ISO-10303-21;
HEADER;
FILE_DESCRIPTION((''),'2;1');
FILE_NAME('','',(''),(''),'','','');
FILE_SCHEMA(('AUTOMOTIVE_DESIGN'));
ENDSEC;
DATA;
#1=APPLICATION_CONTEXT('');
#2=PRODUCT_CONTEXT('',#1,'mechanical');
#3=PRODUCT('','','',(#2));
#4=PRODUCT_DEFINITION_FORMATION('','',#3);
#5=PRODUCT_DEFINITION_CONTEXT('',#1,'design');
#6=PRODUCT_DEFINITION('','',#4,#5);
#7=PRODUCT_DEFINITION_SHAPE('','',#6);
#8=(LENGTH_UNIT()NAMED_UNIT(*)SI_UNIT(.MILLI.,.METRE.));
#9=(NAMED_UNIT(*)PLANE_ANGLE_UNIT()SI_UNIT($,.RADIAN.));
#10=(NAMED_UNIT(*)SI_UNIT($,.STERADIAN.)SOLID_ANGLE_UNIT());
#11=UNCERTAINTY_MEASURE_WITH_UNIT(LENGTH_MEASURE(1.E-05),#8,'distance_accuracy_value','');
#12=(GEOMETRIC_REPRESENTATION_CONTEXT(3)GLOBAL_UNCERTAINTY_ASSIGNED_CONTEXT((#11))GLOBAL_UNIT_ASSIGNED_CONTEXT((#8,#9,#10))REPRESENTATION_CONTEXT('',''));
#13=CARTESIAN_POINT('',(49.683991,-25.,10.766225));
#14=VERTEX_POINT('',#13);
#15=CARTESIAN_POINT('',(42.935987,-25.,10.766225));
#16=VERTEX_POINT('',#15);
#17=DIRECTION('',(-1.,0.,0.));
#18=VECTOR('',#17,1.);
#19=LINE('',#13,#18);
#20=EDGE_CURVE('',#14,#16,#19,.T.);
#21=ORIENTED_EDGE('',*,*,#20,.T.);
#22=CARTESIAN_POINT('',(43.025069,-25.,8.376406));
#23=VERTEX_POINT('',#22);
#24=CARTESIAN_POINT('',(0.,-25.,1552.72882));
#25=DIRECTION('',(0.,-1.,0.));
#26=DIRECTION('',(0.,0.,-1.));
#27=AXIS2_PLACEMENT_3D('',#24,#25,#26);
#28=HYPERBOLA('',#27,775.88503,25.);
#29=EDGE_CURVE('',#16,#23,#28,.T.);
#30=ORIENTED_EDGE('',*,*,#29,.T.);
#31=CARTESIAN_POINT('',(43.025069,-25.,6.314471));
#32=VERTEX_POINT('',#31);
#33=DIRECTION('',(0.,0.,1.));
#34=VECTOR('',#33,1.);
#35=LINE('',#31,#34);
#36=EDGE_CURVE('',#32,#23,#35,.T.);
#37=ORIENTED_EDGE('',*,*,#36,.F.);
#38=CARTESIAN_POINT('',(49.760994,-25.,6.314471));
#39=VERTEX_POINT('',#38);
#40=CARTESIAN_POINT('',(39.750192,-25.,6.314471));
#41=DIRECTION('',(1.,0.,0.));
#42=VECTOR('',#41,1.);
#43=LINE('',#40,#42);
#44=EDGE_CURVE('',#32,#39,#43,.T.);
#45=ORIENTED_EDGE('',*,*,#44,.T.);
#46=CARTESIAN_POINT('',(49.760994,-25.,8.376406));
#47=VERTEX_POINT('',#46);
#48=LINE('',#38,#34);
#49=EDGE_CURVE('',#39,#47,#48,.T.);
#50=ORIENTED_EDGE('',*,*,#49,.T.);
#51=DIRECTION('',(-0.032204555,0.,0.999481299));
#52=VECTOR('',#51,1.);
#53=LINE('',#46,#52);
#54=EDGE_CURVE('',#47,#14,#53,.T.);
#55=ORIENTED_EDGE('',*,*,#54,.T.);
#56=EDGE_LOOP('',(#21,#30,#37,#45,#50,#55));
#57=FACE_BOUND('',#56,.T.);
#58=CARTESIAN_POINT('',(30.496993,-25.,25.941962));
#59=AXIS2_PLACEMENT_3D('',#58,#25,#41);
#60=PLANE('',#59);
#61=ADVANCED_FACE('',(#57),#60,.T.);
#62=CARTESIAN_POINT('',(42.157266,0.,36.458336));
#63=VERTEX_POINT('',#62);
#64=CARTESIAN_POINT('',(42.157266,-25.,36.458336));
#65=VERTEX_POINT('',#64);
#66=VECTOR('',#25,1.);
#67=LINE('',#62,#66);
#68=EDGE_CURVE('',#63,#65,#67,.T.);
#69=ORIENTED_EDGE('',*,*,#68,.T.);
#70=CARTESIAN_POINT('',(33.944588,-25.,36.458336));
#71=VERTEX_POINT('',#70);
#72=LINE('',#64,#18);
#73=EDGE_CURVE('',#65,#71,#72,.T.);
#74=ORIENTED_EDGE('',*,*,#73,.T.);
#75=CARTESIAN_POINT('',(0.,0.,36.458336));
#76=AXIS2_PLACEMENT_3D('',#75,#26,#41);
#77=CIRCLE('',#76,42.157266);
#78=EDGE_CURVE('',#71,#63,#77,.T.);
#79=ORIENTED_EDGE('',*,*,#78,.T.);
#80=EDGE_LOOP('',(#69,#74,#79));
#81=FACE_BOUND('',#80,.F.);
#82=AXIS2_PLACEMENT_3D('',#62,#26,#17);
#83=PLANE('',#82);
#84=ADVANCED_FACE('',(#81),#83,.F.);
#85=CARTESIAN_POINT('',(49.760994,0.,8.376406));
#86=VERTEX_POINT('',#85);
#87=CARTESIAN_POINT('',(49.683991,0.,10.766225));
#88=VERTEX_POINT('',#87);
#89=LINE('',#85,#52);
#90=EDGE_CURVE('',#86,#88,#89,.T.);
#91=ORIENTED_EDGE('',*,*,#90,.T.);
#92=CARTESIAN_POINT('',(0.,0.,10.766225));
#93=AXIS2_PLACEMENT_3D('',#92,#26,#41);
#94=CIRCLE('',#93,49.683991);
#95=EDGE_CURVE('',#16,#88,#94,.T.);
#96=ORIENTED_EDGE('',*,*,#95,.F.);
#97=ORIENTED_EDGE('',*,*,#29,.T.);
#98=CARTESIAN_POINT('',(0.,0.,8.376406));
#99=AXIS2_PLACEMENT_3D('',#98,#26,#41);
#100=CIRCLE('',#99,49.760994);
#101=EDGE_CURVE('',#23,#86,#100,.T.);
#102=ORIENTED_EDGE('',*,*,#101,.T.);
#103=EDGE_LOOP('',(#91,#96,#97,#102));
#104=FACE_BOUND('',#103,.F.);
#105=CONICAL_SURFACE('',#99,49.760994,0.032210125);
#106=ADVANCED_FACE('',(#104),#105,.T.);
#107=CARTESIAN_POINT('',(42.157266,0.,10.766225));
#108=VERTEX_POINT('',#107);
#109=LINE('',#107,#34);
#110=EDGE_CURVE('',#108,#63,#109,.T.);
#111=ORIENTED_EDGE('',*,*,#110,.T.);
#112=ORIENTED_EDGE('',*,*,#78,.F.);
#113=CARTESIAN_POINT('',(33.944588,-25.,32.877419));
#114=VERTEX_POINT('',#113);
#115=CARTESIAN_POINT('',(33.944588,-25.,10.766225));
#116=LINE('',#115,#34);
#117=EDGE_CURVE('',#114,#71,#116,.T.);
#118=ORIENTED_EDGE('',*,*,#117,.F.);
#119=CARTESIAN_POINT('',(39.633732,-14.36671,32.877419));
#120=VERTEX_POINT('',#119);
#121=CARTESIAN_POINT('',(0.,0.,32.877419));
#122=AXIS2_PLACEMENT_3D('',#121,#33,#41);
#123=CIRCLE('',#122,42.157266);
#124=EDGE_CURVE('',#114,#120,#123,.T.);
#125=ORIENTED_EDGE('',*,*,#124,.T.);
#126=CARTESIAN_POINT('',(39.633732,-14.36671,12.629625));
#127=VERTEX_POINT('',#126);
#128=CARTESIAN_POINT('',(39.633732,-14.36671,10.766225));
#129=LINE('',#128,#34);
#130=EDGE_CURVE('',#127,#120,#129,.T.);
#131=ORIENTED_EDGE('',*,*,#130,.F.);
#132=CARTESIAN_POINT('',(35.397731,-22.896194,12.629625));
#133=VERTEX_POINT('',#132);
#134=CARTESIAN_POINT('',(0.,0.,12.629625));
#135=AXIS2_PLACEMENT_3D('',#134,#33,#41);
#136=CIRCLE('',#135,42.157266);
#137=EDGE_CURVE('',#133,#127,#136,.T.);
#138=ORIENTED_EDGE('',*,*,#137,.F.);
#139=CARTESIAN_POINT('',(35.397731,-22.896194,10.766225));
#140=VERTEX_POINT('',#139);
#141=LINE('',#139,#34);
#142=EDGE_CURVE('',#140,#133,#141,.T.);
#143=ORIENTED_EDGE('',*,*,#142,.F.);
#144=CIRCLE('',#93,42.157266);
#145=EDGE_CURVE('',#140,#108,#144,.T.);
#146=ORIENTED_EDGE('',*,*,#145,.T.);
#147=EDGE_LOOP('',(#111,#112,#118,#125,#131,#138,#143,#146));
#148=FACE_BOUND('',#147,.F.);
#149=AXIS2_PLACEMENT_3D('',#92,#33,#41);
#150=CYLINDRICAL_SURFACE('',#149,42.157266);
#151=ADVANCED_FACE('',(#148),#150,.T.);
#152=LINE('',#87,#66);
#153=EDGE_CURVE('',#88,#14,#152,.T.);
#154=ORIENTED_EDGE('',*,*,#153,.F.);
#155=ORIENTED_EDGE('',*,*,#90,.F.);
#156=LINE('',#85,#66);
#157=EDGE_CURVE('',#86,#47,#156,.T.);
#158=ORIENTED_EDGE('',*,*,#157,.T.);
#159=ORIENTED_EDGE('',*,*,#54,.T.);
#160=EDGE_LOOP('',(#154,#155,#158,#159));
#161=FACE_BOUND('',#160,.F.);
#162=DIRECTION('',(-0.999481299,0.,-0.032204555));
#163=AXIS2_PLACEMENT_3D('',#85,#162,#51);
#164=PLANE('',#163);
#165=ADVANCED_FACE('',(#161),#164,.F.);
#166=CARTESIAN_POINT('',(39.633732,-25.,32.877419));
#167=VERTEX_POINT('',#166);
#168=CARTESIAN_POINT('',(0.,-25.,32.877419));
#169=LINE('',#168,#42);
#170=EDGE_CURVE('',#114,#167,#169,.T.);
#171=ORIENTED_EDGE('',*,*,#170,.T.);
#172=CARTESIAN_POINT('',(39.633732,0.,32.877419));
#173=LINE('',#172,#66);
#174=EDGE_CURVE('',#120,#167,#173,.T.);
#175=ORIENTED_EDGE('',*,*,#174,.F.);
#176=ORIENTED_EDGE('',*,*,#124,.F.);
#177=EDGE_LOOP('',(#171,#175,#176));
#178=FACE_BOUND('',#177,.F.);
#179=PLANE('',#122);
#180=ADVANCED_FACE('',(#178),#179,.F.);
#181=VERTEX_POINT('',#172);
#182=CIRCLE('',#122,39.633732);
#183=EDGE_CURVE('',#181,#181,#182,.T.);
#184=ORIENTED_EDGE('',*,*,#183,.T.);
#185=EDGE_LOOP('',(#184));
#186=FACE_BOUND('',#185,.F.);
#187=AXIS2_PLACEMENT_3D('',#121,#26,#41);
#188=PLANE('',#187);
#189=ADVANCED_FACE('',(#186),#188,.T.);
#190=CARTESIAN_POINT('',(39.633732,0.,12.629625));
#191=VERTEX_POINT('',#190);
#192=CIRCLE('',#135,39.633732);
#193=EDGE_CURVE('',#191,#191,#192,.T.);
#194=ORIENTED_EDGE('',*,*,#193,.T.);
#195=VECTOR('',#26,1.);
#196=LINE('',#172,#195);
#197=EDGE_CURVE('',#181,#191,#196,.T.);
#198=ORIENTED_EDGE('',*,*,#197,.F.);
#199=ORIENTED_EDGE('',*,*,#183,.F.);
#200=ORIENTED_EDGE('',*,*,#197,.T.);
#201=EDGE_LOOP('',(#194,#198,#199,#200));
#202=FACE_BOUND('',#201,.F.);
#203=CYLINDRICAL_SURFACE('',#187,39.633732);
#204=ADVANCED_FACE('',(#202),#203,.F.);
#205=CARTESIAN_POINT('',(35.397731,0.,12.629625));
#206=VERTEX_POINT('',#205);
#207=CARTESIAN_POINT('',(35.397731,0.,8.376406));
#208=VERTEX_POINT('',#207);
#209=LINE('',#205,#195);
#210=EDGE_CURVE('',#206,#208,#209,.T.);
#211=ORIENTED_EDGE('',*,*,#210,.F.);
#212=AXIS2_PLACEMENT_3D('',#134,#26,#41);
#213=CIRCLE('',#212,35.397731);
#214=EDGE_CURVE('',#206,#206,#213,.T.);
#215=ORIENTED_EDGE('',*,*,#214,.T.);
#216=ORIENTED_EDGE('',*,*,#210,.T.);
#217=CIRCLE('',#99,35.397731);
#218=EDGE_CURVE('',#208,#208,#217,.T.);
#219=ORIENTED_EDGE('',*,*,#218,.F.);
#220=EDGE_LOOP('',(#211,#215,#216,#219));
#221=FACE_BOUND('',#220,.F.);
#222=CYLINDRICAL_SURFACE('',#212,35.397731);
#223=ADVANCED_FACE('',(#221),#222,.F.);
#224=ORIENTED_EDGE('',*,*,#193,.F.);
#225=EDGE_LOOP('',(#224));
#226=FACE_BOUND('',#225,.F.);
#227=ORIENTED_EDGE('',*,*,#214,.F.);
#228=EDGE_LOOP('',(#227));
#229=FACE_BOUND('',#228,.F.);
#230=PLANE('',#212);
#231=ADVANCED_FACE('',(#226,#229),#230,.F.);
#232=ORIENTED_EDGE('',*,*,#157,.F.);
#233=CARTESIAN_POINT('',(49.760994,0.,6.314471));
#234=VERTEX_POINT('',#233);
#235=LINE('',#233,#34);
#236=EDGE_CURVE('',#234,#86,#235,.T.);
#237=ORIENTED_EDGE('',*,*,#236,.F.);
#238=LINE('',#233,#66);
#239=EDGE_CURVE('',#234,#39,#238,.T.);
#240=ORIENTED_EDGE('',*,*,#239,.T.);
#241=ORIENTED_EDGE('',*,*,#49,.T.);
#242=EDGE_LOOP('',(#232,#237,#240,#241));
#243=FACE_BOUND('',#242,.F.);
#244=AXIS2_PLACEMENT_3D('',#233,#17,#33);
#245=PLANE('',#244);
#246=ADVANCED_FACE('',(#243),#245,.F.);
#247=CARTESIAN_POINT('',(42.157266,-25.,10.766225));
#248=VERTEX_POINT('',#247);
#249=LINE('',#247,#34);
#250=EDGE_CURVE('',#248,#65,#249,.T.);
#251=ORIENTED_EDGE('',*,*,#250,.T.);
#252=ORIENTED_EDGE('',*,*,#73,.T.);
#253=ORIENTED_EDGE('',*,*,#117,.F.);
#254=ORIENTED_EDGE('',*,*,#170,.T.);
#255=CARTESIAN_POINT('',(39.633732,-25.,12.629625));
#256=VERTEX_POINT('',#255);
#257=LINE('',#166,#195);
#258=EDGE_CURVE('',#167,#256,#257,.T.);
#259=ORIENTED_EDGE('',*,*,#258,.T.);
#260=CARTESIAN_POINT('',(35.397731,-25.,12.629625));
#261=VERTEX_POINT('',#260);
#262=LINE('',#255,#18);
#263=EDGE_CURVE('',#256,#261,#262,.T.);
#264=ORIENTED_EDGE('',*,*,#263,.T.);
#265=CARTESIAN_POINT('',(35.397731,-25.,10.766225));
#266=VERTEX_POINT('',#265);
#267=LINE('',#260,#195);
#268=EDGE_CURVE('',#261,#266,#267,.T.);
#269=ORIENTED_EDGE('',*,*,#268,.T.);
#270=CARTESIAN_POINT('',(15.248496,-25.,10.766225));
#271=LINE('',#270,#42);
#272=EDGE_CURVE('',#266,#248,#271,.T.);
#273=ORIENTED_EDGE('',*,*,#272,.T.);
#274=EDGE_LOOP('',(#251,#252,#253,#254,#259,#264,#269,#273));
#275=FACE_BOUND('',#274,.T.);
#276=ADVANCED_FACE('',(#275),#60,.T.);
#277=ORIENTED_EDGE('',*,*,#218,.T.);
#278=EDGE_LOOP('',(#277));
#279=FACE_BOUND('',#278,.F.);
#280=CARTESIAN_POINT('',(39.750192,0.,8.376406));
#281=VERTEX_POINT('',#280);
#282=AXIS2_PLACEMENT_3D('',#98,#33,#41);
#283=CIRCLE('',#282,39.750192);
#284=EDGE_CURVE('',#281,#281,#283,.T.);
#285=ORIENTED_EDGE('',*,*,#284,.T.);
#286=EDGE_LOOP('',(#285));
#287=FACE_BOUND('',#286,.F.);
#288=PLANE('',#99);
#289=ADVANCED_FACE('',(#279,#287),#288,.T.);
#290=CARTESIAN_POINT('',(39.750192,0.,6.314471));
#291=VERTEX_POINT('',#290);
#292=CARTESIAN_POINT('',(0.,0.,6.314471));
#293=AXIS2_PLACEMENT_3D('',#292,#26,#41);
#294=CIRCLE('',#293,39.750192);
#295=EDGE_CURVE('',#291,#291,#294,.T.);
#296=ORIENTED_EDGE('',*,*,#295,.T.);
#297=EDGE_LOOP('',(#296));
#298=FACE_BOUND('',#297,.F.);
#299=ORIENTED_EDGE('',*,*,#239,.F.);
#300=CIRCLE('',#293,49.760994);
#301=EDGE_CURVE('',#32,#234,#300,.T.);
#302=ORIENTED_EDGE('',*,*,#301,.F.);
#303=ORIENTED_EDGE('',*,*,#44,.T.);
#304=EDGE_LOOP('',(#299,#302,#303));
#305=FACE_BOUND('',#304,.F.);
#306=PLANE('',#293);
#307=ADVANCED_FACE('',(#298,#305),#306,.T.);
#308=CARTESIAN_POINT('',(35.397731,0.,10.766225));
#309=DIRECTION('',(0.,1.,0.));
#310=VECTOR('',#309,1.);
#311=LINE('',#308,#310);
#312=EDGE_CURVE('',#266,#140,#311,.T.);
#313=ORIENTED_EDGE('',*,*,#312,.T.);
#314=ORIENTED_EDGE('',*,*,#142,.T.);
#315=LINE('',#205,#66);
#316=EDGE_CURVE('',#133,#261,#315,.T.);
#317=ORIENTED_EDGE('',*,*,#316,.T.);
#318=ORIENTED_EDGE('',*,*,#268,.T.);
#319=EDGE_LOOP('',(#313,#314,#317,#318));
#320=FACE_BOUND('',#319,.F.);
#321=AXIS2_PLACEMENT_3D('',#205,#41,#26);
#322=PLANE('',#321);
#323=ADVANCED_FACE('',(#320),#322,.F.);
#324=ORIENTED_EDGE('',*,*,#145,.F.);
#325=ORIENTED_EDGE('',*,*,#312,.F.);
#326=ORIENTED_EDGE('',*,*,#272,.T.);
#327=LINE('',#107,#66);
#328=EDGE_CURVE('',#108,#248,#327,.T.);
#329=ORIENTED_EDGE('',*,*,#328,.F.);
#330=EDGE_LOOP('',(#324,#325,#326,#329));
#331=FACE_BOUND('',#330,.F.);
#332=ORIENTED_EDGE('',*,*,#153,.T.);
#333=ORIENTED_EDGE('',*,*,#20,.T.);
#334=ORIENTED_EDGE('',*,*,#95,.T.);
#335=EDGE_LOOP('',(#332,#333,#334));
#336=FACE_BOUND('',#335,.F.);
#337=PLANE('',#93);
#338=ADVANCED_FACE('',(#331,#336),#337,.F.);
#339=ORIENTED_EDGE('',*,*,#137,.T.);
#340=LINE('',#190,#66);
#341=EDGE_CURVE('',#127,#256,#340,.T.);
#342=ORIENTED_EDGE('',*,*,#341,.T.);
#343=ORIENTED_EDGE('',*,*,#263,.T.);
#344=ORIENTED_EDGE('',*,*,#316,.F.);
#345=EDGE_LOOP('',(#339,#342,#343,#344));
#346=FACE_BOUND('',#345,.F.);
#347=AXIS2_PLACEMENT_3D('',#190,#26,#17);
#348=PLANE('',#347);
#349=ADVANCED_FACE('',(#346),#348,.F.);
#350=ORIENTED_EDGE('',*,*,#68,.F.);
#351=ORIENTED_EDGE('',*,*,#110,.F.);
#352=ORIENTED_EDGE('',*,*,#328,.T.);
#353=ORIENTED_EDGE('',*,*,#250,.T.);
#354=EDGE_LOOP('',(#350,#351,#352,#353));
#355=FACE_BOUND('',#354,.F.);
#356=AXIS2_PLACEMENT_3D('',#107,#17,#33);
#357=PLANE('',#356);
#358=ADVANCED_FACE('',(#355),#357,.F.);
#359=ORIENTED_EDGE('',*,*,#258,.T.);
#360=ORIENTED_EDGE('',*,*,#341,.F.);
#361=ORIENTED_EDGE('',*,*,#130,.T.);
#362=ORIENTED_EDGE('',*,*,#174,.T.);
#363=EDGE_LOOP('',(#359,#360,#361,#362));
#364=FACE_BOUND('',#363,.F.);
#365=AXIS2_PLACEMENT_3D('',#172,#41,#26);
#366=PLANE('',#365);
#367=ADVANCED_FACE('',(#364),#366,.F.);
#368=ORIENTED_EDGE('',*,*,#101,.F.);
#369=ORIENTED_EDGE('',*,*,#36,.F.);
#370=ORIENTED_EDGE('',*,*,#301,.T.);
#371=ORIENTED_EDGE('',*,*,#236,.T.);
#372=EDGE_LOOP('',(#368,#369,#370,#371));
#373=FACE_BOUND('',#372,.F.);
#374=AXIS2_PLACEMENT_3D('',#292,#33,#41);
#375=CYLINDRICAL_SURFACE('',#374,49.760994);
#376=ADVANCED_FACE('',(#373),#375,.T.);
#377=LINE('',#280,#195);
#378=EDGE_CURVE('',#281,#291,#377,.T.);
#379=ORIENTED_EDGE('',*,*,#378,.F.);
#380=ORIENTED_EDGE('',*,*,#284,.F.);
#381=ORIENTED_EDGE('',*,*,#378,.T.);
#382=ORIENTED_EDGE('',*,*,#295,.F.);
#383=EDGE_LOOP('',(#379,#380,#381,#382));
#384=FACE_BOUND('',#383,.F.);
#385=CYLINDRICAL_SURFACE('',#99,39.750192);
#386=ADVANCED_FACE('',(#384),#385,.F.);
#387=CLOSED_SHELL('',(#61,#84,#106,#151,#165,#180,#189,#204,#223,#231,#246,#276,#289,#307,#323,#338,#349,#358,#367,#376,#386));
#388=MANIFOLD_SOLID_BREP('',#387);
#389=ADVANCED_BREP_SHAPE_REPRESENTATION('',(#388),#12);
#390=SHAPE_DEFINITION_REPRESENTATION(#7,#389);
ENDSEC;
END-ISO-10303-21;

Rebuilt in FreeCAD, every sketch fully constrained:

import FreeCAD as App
import Part
import Sketcher


def add_polygon(sketch, points):
    """Adds a closed chain of lines whose ends are joined by coincident constraints."""
    first, n = sketch.GeometryCount, len(points)
    for a, b in zip(points, points[1:] + points[:1]):
        sketch.addGeometry(Part.LineSegment(App.Vector(*a, 0), App.Vector(*b, 0)), False)
    for i in range(n):
        sketch.addConstraint(Sketcher.Constraint("Coincident", first + i, 2, first + (i + 1) % n, 1))

doc = App.newDocument("Part")
params = doc.addObject("Spreadsheet::Sheet", "Params")
for row, (alias, value) in enumerate([
    ("pad1_length", "25 mm"),
    ("revolution_angle", "360 deg"),
], start=1):
    params.set(f"A{row}", alias)
    params.set(f"B{row}", "=" + value)
    params.setAlias(f"B{row}", alias)

body = doc.addObject("PartDesign::Body", "Body")

# Sketch on XZ plane
sketch1 = doc.addObject("Sketcher::SketchObject", "Sketch")
body.addObject(sketch1)
sketch1.AttachmentSupport = (doc.XZ_Plane, [""])
sketch1.MapMode = "FlatFace"
add_polygon(sketch1, [(42.2, 36.5), (0, 36.5), (0, 32.9), (39.6, 32.9), (39.6, 12.6), (35.4, 12.6), (35.4, 8.4), (39.8, 8.4), (39.8, 6.3), (49.8, 6.3), (49.8, 8.4), (49.7, 10.8), (42.2, 10.8)])  # lines 0-12
sketch1.addConstraint([
    Sketcher.Constraint("Horizontal", 0),
    Sketcher.Constraint("Vertical", 1),
    Sketcher.Constraint("Horizontal", 2),
    Sketcher.Constraint("Vertical", 3),
    Sketcher.Constraint("Horizontal", 4),
    Sketcher.Constraint("Vertical", 5),
    Sketcher.Constraint("Horizontal", 6),
    Sketcher.Constraint("Vertical", 7),
    Sketcher.Constraint("Horizontal", 8),
    Sketcher.Constraint("Vertical", 9),
    Sketcher.Constraint("Horizontal", 11),
    Sketcher.Constraint("Vertical", 12),
    Sketcher.Constraint("PointOnObject", 0, 2, -2),
    Sketcher.Constraint("Horizontal", 6, 2, 9, 2),
    Sketcher.Constraint("DistanceX", 4, 2, 4, 1, 4.236001),
    Sketcher.Constraint("DistanceX", 8, 1, 8, 2, 10.010802),
    Sketcher.Constraint("DistanceX", 6, 1, 6, 2, 4.352461),
    Sketcher.Constraint("DistanceY", 5, 2, 5, 1, 4.253219),
    Sketcher.Constraint("DistanceY", 12, 1, 12, 2, 25.692111),
    Sketcher.Constraint("DistanceX", 6, 2, 10, 2, 9.933799),
    Sketcher.Constraint("DistanceY", 10, 2, 3, 2, 1.8634),
    Sketcher.Constraint("DistanceX", 0, 2, 0, 1, 42.157266),
    Sketcher.Constraint("DistanceX", 2, 1, 2, 2, 39.633732),
    Sketcher.Constraint("DistanceY", 1, 2, 1, 1, 3.580917),
    Sketcher.Constraint("DistanceY", 7, 2, 7, 1, 2.061935),
    Sketcher.Constraint("DistanceY", -1, 1, 1, 2, 32.877419),
])
pad1 = doc.addObject("PartDesign::Pad", "Pad")
body.addObject(pad1)
pad1.Profile = sketch1
pad1.setExpression("Length", "Params.pad1_length")

# Sketch on XZ plane
sketch2 = doc.addObject("Sketcher::SketchObject", "Sketch001")
body.addObject(sketch2)
sketch2.AttachmentSupport = (doc.XZ_Plane, [""])
sketch2.MapMode = "FlatFace"
add_polygon(sketch2, [(42.2, 36.5), (0, 36.5), (0, 32.9), (39.6, 32.9), (39.6, 12.6), (35.4, 12.6), (35.4, 8.4), (39.8, 8.4), (39.8, 6.3), (49.8, 6.3), (49.8, 8.4), (49.7, 10.8), (42.2, 10.8)])  # lines 0-12
sketch2.addConstraint([
    Sketcher.Constraint("Horizontal", 0),
    Sketcher.Constraint("Vertical", 1),
    Sketcher.Constraint("Horizontal", 2),
    Sketcher.Constraint("Vertical", 3),
    Sketcher.Constraint("Horizontal", 4),
    Sketcher.Constraint("Vertical", 5),
    Sketcher.Constraint("Horizontal", 6),
    Sketcher.Constraint("Vertical", 7),
    Sketcher.Constraint("Horizontal", 8),
    Sketcher.Constraint("Vertical", 9),
    Sketcher.Constraint("Horizontal", 11),
    Sketcher.Constraint("Vertical", 12),
    Sketcher.Constraint("PointOnObject", 0, 2, -2),
    Sketcher.Constraint("Horizontal", 6, 2, 9, 2),
    Sketcher.Constraint("DistanceX", 4, 2, 4, 1, 4.236001),
    Sketcher.Constraint("DistanceX", 8, 1, 8, 2, 10.010802),
    Sketcher.Constraint("DistanceX", 6, 1, 6, 2, 4.352461),
    Sketcher.Constraint("DistanceY", 5, 2, 5, 1, 4.253219),
    Sketcher.Constraint("DistanceY", 12, 1, 12, 2, 25.692111),
    Sketcher.Constraint("DistanceX", 6, 2, 10, 2, 9.933799),
    Sketcher.Constraint("DistanceY", 10, 2, 3, 2, 1.8634),
    Sketcher.Constraint("DistanceX", 0, 2, 0, 1, 42.157266),
    Sketcher.Constraint("DistanceX", 2, 1, 2, 2, 39.633732),
    Sketcher.Constraint("DistanceY", 1, 2, 1, 1, 3.580917),
    Sketcher.Constraint("DistanceY", 7, 2, 7, 1, 2.061935),
    Sketcher.Constraint("DistanceY", -1, 1, 1, 2, 32.877419),
])
revolution = doc.addObject("PartDesign::Revolution", "Revolution")
body.addObject(revolution)
revolution.Profile = sketch2
revolution.ReferenceAxis = (sketch2, ["V_Axis"])
revolution.setExpression("Angle", "Params.revolution_angle")

doc.recompute()
